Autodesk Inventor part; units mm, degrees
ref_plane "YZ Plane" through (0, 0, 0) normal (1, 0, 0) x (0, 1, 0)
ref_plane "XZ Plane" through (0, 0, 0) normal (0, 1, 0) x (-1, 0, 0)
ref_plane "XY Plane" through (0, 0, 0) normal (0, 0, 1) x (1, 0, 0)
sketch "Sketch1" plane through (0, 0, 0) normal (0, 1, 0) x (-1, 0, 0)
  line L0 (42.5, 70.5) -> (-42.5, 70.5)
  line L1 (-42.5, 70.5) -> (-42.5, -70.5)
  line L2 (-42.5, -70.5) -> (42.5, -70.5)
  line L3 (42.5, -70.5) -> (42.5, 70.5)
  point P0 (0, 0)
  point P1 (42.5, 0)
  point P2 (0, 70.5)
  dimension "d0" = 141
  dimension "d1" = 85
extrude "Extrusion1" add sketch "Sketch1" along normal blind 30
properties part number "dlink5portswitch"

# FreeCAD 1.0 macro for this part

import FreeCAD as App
import Part
import Sketcher
Q = App.Units.Quantity


def add_polygon(sketch, points):
    """Adds a closed chain of lines whose ends are joined by coincident constraints."""
    first, n = sketch.GeometryCount, len(points)
    for a, b in zip(points, points[1:] + points[:1]):
        sketch.addGeometry(Part.LineSegment(App.Vector(*a, 0), App.Vector(*b, 0)), False)
    for i in range(n):
        sketch.addConstraint(Sketcher.Constraint("Coincident", first + i, 2, first + (i + 1) % n, 1))

doc = App.newDocument("Part")
body = doc.addObject("PartDesign::Body", "Body")

# Sketch on XZ plane
sketch1 = body.newObject("Sketcher::SketchObject", "Sketch")
sketch1.AttachmentSupport = (doc.getObject("XZ_Plane"), [""])
sketch1.MapMode = "FlatFace"
add_polygon(sketch1, [(-42.5, -70.5), (-42.5, 70.5), (42.5, 70.5), (42.5, -70.5)])  # lines 0-3
sketch1.addConstraint(Sketcher.Constraint("Vertical", 0))
sketch1.addConstraint(Sketcher.Constraint("Horizontal", 1))
sketch1.addConstraint(Sketcher.Constraint("Vertical", 2))
sketch1.addConstraint(Sketcher.Constraint("Horizontal", 3))
sketch1.addConstraint(Sketcher.Constraint("Symmetric", 0, 2, 2, 2, -1, 1))
sketch1.addConstraint(Sketcher.Constraint("DistanceX", 1, 1, 1, 2, Q("85 mm")))
sketch1.addConstraint(Sketcher.Constraint("DistanceY", 0, 1, 0, 2, Q("141 mm")))
pad1 = body.newObject("PartDesign::Pad", "Pad")
pad1.Profile = sketch1
pad1.Length = 30
pad1.Reversed = True

doc.recompute()
